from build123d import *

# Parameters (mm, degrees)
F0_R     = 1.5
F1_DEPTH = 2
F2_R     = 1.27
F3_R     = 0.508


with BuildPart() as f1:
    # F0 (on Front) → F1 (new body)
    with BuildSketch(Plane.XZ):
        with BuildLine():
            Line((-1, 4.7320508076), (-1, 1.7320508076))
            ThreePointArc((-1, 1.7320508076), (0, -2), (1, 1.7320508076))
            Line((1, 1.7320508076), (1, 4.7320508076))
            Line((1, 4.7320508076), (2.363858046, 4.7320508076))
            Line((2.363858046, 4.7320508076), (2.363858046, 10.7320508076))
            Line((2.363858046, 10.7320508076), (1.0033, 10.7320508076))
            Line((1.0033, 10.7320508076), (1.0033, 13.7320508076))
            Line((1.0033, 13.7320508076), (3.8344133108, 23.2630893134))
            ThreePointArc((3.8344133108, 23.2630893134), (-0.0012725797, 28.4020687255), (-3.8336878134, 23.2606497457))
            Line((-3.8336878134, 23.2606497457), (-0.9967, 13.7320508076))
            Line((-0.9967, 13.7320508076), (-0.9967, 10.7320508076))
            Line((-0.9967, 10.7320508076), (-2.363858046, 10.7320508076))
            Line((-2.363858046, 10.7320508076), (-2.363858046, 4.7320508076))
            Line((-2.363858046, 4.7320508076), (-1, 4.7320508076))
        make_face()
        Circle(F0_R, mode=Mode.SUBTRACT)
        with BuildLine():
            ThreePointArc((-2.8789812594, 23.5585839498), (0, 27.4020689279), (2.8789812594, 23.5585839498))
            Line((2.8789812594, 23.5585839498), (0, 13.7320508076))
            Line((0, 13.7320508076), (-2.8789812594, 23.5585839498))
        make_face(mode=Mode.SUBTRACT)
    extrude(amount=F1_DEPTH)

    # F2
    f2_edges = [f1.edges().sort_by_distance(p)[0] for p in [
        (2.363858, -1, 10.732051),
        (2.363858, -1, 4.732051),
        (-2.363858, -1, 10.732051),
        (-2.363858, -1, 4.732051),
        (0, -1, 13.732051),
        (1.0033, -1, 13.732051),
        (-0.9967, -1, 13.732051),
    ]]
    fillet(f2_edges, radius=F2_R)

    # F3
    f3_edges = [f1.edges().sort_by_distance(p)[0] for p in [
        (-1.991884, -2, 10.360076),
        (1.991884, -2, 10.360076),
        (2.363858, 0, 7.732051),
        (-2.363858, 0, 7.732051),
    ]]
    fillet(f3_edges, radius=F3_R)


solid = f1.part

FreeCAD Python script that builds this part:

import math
import FreeCAD as App
import Part
import Sketcher

V = App.Vector
Q = App.Units.Quantity


def edges_at(feature, points):
    """Names of the edges that pass closest to the given points."""
    edges = feature.Shape.Edges
    near = lambda p: min(range(len(edges)), key=lambda i: edges[i].distToShape(Part.Vertex(*p))[0])
    return sorted({f"Edge{near(p) + 1}" for p in points})

doc = App.newDocument("Part")
body = doc.addObject("PartDesign::Body", "Body")

# Sketch on XZ plane
sketch1 = body.newObject("Sketcher::SketchObject", "Sketch")
sketch1.AttachmentSupport = (doc.getObject("XZ_Plane"), [""])
sketch1.MapMode = "FlatFace"
sketch1.addGeometry(Part.LineSegment(V(-1, 4.732051, 0), V(-1, 1.732051, 0)), False)
sketch1.addGeometry(Part.ArcOfCircle(Part.Circle(V(0, 0, 0), V(0, 0, 1), 2), math.radians(120), math.radians(420)), False)
sketch1.addGeometry(Part.LineSegment(V(1, 1.732051, 0), V(1, 4.732051, 0)), False)
sketch1.addGeometry(Part.LineSegment(V(1, 4.732051, 0), V(2.363858, 4.732051, 0)), False)
sketch1.addGeometry(Part.LineSegment(V(2.363858, 4.732051, 0), V(2.363858, 10.732051, 0)), False)
sketch1.addGeometry(Part.LineSegment(V(2.363858, 10.732051, 0), V(1.0033, 10.732051, 0)), False)
sketch1.addGeometry(Part.LineSegment(V(1.0033, 10.732051, 0), V(1.0033, 13.732051, 0)), False)
sketch1.addGeometry(Part.LineSegment(V(1.0033, 13.732051, 0), V(3.834413, 23.263089, 0)), False)
sketch1.addGeometry(Part.ArcOfCircle(Part.Circle(V(0, 24.402069, 0), V(0, 0, 1), 4), math.radians(-16.543601), math.radians(196.580058)), False)
sketch1.addGeometry(Part.LineSegment(V(-3.833688, 23.26065, 0), V(-0.9967, 13.732051, 0)), False)
sketch1.addGeometry(Part.LineSegment(V(-0.9967, 13.732051, 0), V(-0.9967, 10.732051, 0)), False)
sketch1.addGeometry(Part.LineSegment(V(-0.9967, 10.732051, 0), V(-2.363858, 10.732051, 0)), False)
sketch1.addGeometry(Part.LineSegment(V(-2.363858, 10.732051, 0), V(-2.363858, 4.732051, 0)), False)
sketch1.addGeometry(Part.LineSegment(V(-2.363858, 4.732051, 0), V(-1, 4.732051, 0)), False)
sketch1.addGeometry(Part.Circle(V(0, 0, 0), V(0, 0, 1), 1.5), False)
sketch1.addGeometry(Part.LineSegment(V(0, 13.732051, 0), V(-2.878981, 23.558584, 0)), False)
sketch1.addGeometry(Part.ArcOfCircle(Part.Circle(V(0, 24.402069, 0), V(0, 0, 1), 3), math.radians(-16.329548), math.radians(196.329548)), False)
sketch1.addGeometry(Part.LineSegment(V(2.878981, 23.558584, 0), V(0, 13.732051, 0)), False)
sketch1.addConstraint(Sketcher.Constraint("Coincident", 0, 2, 1, 1))
sketch1.addConstraint(Sketcher.Constraint("Coincident", 1, 2, 2, 1))
sketch1.addConstraint(Sketcher.Constraint("Coincident", 2, 2, 3, 1))
sketch1.addConstraint(Sketcher.Constraint("Coincident", 3, 2, 4, 1))
sketch1.addConstraint(Sketcher.Constraint("Coincident", 4, 2, 5, 1))
sketch1.addConstraint(Sketcher.Constraint("Coincident", 5, 2, 6, 1))
sketch1.addConstraint(Sketcher.Constraint("Coincident", 6, 2, 7, 1))
sketch1.addConstraint(Sketcher.Constraint("Tangent", 7, 2, 8, 1))
sketch1.addConstraint(Sketcher.Constraint("Tangent", 8, 2, 9, 1))
sketch1.addConstraint(Sketcher.Constraint("Coincident", 9, 2, 10, 1))
sketch1.addConstraint(Sketcher.Constraint("Coincident", 10, 2, 11, 1))
sketch1.addConstraint(Sketcher.Constraint("Coincident", 11, 2, 12, 1))
sketch1.addConstraint(Sketcher.Constraint("Coincident", 12, 2, 13, 1))
sketch1.addConstraint(Sketcher.Constraint("Coincident", 13, 2, 0, 1))
sketch1.addConstraint(Sketcher.Constraint("Tangent", 15, 2, 16, 2))
sketch1.addConstraint(Sketcher.Constraint("Tangent", 16, 1, 17, 1))
sketch1.addConstraint(Sketcher.Constraint("Coincident", 17, 2, 15, 1))
sketch1.addConstraint(Sketcher.Constraint("Vertical", 0))
sketch1.addConstraint(Sketcher.Constraint("Vertical", 2))
sketch1.addConstraint(Sketcher.Constraint("Horizontal", 3))
sketch1.addConstraint(Sketcher.Constraint("Vertical", 4))
sketch1.addConstraint(Sketcher.Constraint("Horizontal", 5))
sketch1.addConstraint(Sketcher.Constraint("Vertical", 6))
sketch1.addConstraint(Sketcher.Constraint("Vertical", 10))
sketch1.addConstraint(Sketcher.Constraint("Horizontal", 11))
sketch1.addConstraint(Sketcher.Constraint("Vertical", 12))
sketch1.addConstraint(Sketcher.Constraint("Horizontal", 13))
sketch1.addConstraint(Sketcher.Constraint("Coincident", 1, 3, -1, 1))
sketch1.addConstraint(Sketcher.Constraint("Coincident", 14, 3, -1, 1))
sketch1.addConstraint(Sketcher.Constraint("Coincident", 16, 3, 8, 3))
sketch1.addConstraint(Sketcher.Constraint("Symmetric", 4, 2, 11, 2, -2))
sketch1.addConstraint(Sketcher.Constraint("Symmetric", 2, 2, 13, 2, -2))
sketch1.addConstraint(Sketcher.Constraint("Symmetric", 15, 2, 16, 1, -2))
sketch1.addConstraint(Sketcher.Constraint("Horizontal", 6, 2, 9, 2))
sketch1.addConstraint(Sketcher.Constraint("Horizontal", 9, 2, 17, 2))
sketch1.addConstraint(Sketcher.Constraint("Equal", 2, 6))
sketch1.addConstraint(Sketcher.Constraint("Diameter", 14, Q("3 mm")))
sketch1.addConstraint(Sketcher.Constraint("Radius", 1, Q("2 mm")))
sketch1.addConstraint(Sketcher.Constraint("Radius", 8, Q("4 mm")))
sketch1.addConstraint(Sketcher.Constraint("Radius", 16, Q("3 mm")))
sketch1.addConstraint(Sketcher.Constraint("DistanceY", 0, 2, 0, 1, Q("3 mm")))
sketch1.addConstraint(Sketcher.Constraint("DistanceY", 4, 1, 4, 2, Q("6 mm")))
sketch1.addConstraint(Sketcher.Constraint("DistanceX", 0, 2, -1, 1, Q("1 mm")))
sketch1.addConstraint(Sketcher.Constraint("DistanceX", 9, 2, 6, 2, Q("2 mm")))
sketch1.addConstraint(Sketcher.Constraint("DistanceX", 3, 1, 3, 2, Q("1.363858 mm")))
sketch1.addConstraint(Sketcher.Constraint("DistanceX", 5, 2, 5, 1, Q("1.360558 mm")))
sketch1.addConstraint(Sketcher.Constraint("DistanceX", 8, 2, 7, 2, Q("7.668101 mm")))
pad1 = body.newObject("PartDesign::Pad", "Pad")
pad1.Profile = sketch1
pad1.Length = 2
doc.recompute()

fillet = body.newObject("PartDesign::Fillet", "Fillet")
fillet.Base = (pad1, edges_at(pad1, [
    (2.364, -1, 10.732),
    (2.364, -1, 4.732),
    (-2.364, -1, 10.732),
    (-2.364, -1, 4.732),
    (0, -1, 13.732),
    (1.003, -1, 13.732),
    (-0.997, -1, 13.732),
]))
fillet.Radius = 1.27
doc.recompute()

fillet2 = body.newObject("PartDesign::Fillet", "Fillet001")
fillet2.Base = (fillet, edges_at(fillet, [
    (-1.992, -2, 10.36),
    (1.992, -2, 10.36),
    (2.364, 0, 7.732),
    (-2.364, 0, 7.732),
]))
fillet2.Radius = 0.508

doc.recompute()
